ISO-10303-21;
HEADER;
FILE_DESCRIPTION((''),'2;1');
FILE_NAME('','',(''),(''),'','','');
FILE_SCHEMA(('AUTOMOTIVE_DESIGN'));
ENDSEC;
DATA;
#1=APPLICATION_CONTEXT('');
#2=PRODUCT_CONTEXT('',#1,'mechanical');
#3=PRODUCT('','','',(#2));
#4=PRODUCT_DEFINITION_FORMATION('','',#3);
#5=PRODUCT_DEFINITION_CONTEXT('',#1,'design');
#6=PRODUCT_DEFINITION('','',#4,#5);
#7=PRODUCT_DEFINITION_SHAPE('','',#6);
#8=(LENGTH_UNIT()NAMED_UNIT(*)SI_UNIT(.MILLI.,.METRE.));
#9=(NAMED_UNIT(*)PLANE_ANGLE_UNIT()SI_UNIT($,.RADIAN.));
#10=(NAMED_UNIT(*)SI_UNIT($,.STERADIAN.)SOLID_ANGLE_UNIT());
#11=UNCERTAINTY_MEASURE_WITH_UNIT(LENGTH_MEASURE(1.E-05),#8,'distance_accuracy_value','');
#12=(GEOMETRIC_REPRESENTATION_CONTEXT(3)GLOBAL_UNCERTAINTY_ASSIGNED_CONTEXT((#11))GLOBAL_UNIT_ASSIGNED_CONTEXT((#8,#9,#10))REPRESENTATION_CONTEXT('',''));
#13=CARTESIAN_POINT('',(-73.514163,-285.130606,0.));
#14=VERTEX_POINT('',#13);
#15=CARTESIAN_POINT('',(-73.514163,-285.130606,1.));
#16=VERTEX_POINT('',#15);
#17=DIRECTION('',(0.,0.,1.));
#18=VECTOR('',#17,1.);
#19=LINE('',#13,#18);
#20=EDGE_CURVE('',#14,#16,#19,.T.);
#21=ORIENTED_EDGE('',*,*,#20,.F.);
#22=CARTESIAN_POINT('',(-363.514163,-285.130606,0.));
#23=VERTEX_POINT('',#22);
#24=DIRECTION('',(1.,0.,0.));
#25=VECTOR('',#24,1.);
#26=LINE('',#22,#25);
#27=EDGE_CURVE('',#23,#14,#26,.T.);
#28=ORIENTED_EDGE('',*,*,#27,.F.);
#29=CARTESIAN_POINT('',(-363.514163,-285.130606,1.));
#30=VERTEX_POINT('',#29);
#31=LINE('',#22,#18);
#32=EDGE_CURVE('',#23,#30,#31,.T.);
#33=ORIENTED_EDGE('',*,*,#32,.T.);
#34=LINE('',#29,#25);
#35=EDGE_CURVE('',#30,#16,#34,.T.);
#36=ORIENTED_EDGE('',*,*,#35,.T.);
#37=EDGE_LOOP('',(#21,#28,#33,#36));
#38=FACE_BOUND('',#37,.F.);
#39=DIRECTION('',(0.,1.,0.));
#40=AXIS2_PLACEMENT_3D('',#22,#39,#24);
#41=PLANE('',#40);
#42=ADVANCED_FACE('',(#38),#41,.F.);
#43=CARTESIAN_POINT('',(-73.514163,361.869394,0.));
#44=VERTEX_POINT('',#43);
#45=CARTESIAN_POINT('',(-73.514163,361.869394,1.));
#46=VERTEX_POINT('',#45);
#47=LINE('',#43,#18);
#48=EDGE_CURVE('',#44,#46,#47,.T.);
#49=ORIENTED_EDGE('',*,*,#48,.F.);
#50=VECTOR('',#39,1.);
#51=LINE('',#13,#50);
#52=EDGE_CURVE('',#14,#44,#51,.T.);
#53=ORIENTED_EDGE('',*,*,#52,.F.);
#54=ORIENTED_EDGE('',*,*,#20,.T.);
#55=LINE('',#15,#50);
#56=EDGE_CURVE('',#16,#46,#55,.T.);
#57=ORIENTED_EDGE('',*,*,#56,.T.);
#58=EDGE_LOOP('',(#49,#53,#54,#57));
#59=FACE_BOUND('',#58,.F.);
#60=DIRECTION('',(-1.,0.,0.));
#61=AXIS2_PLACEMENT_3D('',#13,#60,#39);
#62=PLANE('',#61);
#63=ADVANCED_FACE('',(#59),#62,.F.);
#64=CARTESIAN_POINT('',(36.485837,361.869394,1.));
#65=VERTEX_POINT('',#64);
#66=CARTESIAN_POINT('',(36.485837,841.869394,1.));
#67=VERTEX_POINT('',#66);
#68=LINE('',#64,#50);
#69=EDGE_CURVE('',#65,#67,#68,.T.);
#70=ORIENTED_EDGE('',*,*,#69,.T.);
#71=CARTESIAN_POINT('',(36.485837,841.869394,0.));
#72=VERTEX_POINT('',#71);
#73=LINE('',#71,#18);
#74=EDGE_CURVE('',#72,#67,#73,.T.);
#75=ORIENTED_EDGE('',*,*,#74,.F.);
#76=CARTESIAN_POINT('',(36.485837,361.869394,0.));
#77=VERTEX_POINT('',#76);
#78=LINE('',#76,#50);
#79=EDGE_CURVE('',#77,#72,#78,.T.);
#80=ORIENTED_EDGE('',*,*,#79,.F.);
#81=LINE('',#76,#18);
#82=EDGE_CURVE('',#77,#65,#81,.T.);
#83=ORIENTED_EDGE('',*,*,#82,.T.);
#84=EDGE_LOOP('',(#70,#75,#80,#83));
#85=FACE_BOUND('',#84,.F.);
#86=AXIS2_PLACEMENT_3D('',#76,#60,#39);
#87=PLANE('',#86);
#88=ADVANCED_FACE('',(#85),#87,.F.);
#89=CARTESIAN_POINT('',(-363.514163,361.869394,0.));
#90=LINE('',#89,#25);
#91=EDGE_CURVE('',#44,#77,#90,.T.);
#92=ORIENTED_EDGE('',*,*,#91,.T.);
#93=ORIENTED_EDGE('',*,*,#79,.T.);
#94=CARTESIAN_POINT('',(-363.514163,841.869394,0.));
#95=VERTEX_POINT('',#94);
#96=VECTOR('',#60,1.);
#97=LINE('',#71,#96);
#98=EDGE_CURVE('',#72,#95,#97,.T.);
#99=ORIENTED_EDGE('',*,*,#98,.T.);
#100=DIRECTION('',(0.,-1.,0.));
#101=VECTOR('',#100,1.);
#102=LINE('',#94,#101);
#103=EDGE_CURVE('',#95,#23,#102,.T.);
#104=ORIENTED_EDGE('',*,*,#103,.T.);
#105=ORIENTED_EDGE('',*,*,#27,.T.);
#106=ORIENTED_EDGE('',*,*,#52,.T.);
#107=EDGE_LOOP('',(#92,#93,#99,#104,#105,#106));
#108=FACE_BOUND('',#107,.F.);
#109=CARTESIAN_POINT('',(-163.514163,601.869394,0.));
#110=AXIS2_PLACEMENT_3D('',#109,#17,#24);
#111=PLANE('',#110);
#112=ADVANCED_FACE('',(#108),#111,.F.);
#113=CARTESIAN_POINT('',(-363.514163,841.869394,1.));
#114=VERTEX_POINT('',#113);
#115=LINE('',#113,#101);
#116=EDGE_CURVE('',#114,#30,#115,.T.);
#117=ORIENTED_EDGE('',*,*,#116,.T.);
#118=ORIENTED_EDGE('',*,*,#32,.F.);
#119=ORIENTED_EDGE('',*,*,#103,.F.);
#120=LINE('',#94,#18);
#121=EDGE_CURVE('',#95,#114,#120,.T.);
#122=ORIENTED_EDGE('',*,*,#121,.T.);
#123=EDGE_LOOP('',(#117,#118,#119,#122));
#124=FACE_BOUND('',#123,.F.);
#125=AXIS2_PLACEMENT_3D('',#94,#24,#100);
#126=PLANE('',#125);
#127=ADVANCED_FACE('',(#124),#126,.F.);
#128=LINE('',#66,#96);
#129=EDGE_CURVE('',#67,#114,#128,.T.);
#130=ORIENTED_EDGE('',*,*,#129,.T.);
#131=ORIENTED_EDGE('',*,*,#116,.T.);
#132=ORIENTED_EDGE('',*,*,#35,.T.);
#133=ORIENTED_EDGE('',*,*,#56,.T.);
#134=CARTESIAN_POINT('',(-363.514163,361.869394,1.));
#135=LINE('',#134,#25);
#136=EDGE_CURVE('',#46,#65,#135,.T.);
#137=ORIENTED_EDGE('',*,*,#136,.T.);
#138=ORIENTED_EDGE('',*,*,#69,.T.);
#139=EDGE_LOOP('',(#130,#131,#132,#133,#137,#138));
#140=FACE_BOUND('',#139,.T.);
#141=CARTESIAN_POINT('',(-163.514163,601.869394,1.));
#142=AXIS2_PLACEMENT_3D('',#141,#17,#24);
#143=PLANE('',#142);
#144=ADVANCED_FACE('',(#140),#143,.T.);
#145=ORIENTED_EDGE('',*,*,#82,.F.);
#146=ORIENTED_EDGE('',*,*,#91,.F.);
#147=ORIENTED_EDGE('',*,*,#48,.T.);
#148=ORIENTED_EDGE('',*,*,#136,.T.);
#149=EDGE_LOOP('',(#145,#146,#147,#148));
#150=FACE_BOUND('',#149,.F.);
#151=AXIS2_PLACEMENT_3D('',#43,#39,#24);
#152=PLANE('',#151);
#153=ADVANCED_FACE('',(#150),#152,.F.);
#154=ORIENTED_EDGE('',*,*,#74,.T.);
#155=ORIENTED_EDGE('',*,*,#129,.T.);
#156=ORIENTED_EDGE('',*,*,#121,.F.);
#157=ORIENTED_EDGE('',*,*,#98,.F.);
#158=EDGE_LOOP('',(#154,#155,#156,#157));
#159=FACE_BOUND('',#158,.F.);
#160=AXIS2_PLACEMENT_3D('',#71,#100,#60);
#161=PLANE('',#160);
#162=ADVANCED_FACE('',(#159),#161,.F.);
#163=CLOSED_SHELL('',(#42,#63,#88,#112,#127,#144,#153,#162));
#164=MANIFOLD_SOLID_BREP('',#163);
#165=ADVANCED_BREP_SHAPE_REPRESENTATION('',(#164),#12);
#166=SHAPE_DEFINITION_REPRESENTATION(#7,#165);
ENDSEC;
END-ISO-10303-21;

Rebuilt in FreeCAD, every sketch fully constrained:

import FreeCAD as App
import Part
import Sketcher
from FreeCAD import Vector


def add_polygon(sketch, points):
    """Adds a closed chain of lines whose ends are joined by coincident constraints."""
    first, n = sketch.GeometryCount, len(points)
    for a, b in zip(points, points[1:] + points[:1]):
        sketch.addGeometry(Part.LineSegment(App.Vector(*a, 0), App.Vector(*b, 0)), False)
    for i in range(n):
        sketch.addConstraint(Sketcher.Constraint("Coincident", first + i, 2, first + (i + 1) % n, 1))

doc = App.newDocument("Part")
params = doc.addObject("Spreadsheet::Sheet", "Params")
for row, (alias, value) in enumerate([
    ("sketch1_width", "400 mm"),
    ("sketch1_width2", "290 mm"),
    ("sketch1_height", "1127 mm"),
    ("sketch1_height2", "647 mm"),
    ("pad1_length", "1 mm"),
], start=1):
    params.set(f"A{row}", alias)
    params.set(f"B{row}", "=" + value)
    params.setAlias(f"B{row}", alias)

body = doc.addObject("PartDesign::Body", "Body")

# Sketch on XY plane
sketch1 = body.newObject("Sketcher::SketchObject", "Sketch")
sketch1.AttachmentSupport = (doc.getObject("XY_Plane"), [""])
sketch1.MapMode = "FlatFace"
add_polygon(sketch1, [(36, 842), (-364, 842), (-364, -285), (-74, -285), (-74, 362), (36, 362)])  # lines 0-5
sketch1.addConstraint([
    Sketcher.Constraint("Horizontal", 0),
    Sketcher.Constraint("Vertical", 1),
    Sketcher.Constraint("Horizontal", 2),
    Sketcher.Constraint("Vertical", 3),
    Sketcher.Constraint("Horizontal", 4),
    Sketcher.Constraint("Vertical", 5),
    Sketcher.Constraint("DistanceX", 0, 2, 0, 1, 400.0),
    Sketcher.Constraint("DistanceX", 2, 1, 2, 2, 290.0),
    Sketcher.Constraint("DistanceY", 1, 2, 1, 1, 1127.0),
    Sketcher.Constraint("DistanceY", 3, 1, 3, 2, 647.0),
    Sketcher.Constraint("DistanceX", 0, 2, -1, 1, 363.514163),
    Sketcher.Constraint("DistanceY", -1, 1, 0, 2, 841.869394),
])
sketch1.setExpression("Constraints[12]", "Params.sketch1_width")
sketch1.setExpression("Constraints[13]", "Params.sketch1_width2")
sketch1.setExpression("Constraints[14]", "Params.sketch1_height")
sketch1.setExpression("Constraints[15]", "Params.sketch1_height2")
pad1 = body.newObject("PartDesign::Pad", "Pad")
pad1.Profile = sketch1
pad1.setExpression("Length", "Params.pad1_length")

doc.recompute()
